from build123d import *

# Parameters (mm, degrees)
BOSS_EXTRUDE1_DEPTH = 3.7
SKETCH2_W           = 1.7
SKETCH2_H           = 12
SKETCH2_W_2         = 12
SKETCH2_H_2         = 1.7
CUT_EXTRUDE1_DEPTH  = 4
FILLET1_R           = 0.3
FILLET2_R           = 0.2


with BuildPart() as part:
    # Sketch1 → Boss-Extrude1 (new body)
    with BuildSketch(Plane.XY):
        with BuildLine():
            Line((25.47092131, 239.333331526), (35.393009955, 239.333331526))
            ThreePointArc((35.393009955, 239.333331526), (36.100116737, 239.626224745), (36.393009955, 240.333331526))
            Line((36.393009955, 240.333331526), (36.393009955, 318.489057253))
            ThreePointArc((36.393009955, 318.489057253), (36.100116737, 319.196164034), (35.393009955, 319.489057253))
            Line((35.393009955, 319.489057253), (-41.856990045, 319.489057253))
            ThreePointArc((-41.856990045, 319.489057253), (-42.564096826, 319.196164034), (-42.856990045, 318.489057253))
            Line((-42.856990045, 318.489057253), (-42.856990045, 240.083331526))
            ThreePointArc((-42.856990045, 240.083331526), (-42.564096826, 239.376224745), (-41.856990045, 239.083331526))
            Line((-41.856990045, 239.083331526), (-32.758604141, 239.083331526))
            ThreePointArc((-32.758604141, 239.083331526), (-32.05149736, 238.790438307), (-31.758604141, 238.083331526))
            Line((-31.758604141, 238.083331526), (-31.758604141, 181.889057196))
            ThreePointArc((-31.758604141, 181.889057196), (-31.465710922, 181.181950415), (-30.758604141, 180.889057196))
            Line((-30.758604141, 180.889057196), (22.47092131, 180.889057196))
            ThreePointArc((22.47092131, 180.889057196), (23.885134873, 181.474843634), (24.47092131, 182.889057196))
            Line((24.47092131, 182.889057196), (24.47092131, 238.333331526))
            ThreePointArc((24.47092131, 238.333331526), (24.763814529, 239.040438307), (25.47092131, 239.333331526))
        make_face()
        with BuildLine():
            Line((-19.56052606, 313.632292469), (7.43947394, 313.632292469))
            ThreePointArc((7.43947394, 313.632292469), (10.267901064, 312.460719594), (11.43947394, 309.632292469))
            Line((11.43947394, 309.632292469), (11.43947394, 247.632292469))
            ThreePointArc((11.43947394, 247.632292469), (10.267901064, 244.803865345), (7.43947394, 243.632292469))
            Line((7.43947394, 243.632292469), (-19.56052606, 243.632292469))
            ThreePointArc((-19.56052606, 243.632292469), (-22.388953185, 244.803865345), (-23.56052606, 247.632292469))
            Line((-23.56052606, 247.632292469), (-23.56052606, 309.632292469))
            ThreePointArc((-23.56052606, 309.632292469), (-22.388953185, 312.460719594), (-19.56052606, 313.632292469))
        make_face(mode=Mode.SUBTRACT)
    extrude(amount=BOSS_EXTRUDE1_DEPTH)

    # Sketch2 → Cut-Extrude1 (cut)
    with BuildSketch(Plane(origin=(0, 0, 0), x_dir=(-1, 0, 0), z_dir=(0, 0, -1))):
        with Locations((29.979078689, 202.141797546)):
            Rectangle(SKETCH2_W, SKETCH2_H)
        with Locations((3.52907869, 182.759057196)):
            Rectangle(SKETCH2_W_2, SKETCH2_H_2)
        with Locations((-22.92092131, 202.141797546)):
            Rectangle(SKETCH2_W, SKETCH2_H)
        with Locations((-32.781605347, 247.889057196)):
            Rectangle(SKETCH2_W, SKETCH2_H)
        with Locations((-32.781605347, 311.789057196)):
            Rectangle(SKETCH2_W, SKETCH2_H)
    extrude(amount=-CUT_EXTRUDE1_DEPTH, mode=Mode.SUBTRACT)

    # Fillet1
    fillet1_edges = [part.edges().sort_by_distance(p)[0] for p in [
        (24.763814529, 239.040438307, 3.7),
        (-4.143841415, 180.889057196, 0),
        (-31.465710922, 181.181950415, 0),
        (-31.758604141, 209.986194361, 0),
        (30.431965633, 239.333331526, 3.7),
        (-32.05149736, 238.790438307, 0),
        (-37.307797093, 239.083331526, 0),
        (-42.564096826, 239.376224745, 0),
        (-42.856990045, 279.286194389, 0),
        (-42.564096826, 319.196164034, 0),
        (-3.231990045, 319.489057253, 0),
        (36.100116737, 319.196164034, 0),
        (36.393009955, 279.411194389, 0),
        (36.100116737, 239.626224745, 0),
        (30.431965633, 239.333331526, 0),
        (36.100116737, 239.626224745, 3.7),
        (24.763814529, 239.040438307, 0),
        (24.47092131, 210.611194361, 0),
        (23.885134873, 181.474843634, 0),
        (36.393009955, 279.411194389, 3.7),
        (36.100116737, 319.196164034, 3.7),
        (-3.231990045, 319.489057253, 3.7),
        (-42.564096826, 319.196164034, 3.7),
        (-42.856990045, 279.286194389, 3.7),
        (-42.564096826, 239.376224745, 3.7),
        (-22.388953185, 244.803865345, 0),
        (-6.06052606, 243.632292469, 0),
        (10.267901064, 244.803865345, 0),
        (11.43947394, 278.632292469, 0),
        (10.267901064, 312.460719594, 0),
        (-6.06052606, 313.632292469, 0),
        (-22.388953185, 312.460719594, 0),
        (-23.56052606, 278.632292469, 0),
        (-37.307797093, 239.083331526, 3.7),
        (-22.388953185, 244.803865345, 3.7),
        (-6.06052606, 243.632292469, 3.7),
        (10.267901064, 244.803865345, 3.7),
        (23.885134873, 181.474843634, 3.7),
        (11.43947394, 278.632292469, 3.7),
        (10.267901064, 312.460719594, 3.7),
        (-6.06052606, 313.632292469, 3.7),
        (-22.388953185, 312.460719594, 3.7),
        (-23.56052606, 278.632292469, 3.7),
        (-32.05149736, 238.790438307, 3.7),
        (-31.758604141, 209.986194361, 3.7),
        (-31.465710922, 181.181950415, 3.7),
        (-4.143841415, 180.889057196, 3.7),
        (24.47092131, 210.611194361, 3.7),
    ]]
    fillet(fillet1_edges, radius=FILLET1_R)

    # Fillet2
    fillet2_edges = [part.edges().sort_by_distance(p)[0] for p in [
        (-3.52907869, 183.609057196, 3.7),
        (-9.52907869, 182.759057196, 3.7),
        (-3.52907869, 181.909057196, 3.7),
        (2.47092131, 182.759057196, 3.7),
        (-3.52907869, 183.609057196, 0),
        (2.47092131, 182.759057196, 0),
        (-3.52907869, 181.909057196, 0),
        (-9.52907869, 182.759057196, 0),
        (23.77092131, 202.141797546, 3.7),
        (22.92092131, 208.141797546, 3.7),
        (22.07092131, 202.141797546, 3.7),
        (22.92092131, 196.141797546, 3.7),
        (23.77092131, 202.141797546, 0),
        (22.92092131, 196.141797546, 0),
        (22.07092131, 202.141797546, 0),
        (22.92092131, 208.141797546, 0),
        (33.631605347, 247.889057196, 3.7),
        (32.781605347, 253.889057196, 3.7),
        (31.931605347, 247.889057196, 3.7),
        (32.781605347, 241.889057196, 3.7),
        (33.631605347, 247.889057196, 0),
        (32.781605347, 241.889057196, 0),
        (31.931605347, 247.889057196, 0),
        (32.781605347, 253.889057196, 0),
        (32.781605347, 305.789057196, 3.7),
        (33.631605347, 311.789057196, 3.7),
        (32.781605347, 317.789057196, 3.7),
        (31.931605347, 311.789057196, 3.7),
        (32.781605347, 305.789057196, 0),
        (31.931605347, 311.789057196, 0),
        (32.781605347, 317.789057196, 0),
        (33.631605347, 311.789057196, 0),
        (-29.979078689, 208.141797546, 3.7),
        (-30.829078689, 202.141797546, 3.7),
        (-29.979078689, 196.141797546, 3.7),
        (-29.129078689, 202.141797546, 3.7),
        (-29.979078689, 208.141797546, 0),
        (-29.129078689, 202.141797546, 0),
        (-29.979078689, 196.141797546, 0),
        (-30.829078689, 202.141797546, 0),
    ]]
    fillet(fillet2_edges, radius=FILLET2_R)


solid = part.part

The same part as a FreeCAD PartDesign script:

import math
import FreeCAD as App
import Part
import Sketcher

V = App.Vector


def edges_at(feature, points):
    """Names of the edges that pass closest to the given points."""
    edges = feature.Shape.Edges
    near = lambda p: min(range(len(edges)), key=lambda i: edges[i].distToShape(Part.Vertex(*p))[0])
    return sorted({f"Edge{near(p) + 1}" for p in points})


def add_polygon(sketch, points):
    """Adds a closed chain of lines whose ends are joined by coincident constraints."""
    first, n = sketch.GeometryCount, len(points)
    for a, b in zip(points, points[1:] + points[:1]):
        sketch.addGeometry(Part.LineSegment(App.Vector(*a, 0), App.Vector(*b, 0)), False)
    for i in range(n):
        sketch.addConstraint(Sketcher.Constraint("Coincident", first + i, 2, first + (i + 1) % n, 1))

doc = App.newDocument("Part")
body = doc.addObject("PartDesign::Body", "Body")

# Sketch on XY plane
sketch1 = doc.addObject("Sketcher::SketchObject", "Sketch")
body.addObject(sketch1)
sketch1.AttachmentSupport = (doc.XY_Plane, [""])
sketch1.MapMode = "FlatFace"
sketch1.addGeometry([
    Part.LineSegment(V(25.5, 239.3, 0), V(35.4, 239.3, 0)),  # 0
    Part.ArcOfCircle(Part.Circle(V(35.4, 240.3, 0), V(0, 0, 1), 1), math.radians(-90), math.radians(0)),  # 1
    Part.LineSegment(V(36.4, 240.3, 0), V(36.4, 318.5, 0)),  # 2
    Part.ArcOfCircle(Part.Circle(V(35.4, 318.5, 0), V(0, 0, 1), 1), math.radians(0), math.radians(90)),  # 3
    Part.LineSegment(V(35.4, 319.5, 0), V(-41.9, 319.5, 0)),  # 4
    Part.ArcOfCircle(Part.Circle(V(-41.9, 318.5, 0), V(0, 0, 1), 1), math.radians(90), math.radians(180)),  # 5
    Part.LineSegment(V(-42.9, 318.5, 0), V(-42.9, 240.1, 0)),  # 6
    Part.ArcOfCircle(Part.Circle(V(-41.9, 240.1, 0), V(0, 0, 1), 1), math.radians(-180), math.radians(-90)),  # 7
    Part.LineSegment(V(-41.9, 239.1, 0), V(-32.8, 239.1, 0)),  # 8
    Part.ArcOfCircle(Part.Circle(V(-32.8, 238.1, 0), V(0, 0, 1), 1), math.radians(0), math.radians(90)),  # 9
    Part.LineSegment(V(-31.8, 238.1, 0), V(-31.8, 181.9, 0)),  # 10
    Part.ArcOfCircle(Part.Circle(V(-30.8, 181.9, 0), V(0, 0, 1), 1), math.radians(-180), math.radians(-90)),  # 11
    Part.LineSegment(V(-30.8, 180.9, 0), V(22.5, 180.9, 0)),  # 12
    Part.ArcOfCircle(Part.Circle(V(22.5, 182.9, 0), V(0, 0, 1), 2), math.radians(-90), math.radians(0)),  # 13
    Part.LineSegment(V(24.5, 182.9, 0), V(24.5, 238.3, 0)),  # 14
    Part.ArcOfCircle(Part.Circle(V(25.5, 238.3, 0), V(0, 0, 1), 1), math.radians(90), math.radians(180)),  # 15
    Part.ArcOfCircle(Part.Circle(V(-19.6, 309.6, 0), V(0, 0, 1), 4), math.radians(90), math.radians(180)),  # 16
    Part.LineSegment(V(-19.6, 313.6, 0), V(7.4, 313.6, 0)),  # 17
    Part.ArcOfCircle(Part.Circle(V(7.4, 309.6, 0), V(0, 0, 1), 4), math.radians(0), math.radians(90)),  # 18
    Part.LineSegment(V(11.4, 309.6, 0), V(11.4, 247.6, 0)),  # 19
    Part.ArcOfCircle(Part.Circle(V(7.4, 247.6, 0), V(0, 0, 1), 4), math.radians(-90), math.radians(0)),  # 20
    Part.LineSegment(V(7.4, 243.6, 0), V(-19.6, 243.6, 0)),  # 21
    Part.ArcOfCircle(Part.Circle(V(-19.6, 247.6, 0), V(0, 0, 1), 4), math.radians(-180), math.radians(-90)),  # 22
    Part.LineSegment(V(-23.6, 247.6, 0), V(-23.6, 309.6, 0)),  # 23
], False)
sketch1.addConstraint([
    Sketcher.Constraint("Tangent", 0, 2, 1, 1),
    Sketcher.Constraint("Tangent", 1, 2, 2, 1),
    Sketcher.Constraint("Tangent", 2, 2, 3, 1),
    Sketcher.Constraint("Tangent", 3, 2, 4, 1),
    Sketcher.Constraint("Tangent", 4, 2, 5, 1),
    Sketcher.Constraint("Tangent", 5, 2, 6, 1),
    Sketcher.Constraint("Tangent", 6, 2, 7, 1),
    Sketcher.Constraint("Tangent", 7, 2, 8, 1),
    Sketcher.Constraint("Tangent", 8, 2, 9, 2),
    Sketcher.Constraint("Tangent", 9, 1, 10, 1),
    Sketcher.Constraint("Tangent", 10, 2, 11, 1),
    Sketcher.Constraint("Tangent", 11, 2, 12, 1),
    Sketcher.Constraint("Tangent", 12, 2, 13, 1),
    Sketcher.Constraint("Tangent", 13, 2, 14, 1),
    Sketcher.Constraint("Tangent", 14, 2, 15, 2),
    Sketcher.Constraint("Tangent", 15, 1, 0, 1),
    Sketcher.Constraint("Tangent", 16, 1, 17, 1),
    Sketcher.Constraint("Tangent", 17, 2, 18, 2),
    Sketcher.Constraint("Tangent", 18, 1, 19, 1),
    Sketcher.Constraint("Tangent", 19, 2, 20, 2),
    Sketcher.Constraint("Tangent", 20, 1, 21, 1),
    Sketcher.Constraint("Tangent", 21, 2, 22, 2),
    Sketcher.Constraint("Tangent", 22, 1, 23, 1),
    Sketcher.Constraint("Tangent", 23, 2, 16, 2),
    Sketcher.Constraint("Horizontal", 0),
    Sketcher.Constraint("Vertical", 2),
    Sketcher.Constraint("Horizontal", 4),
    Sketcher.Constraint("Vertical", 6),
    Sketcher.Constraint("Horizontal", 8),
    Sketcher.Constraint("Vertical", 10),
    Sketcher.Constraint("Horizontal", 12),
    Sketcher.Constraint("Vertical", 14),
    Sketcher.Constraint("Horizontal", 17),
    Sketcher.Constraint("Vertical", 19),
    Sketcher.Constraint("Horizontal", 21),
    Sketcher.Constraint("Vertical", 23),
    Sketcher.Constraint("Equal", 1, 3),
    Sketcher.Constraint("Equal", 3, 5),
    Sketcher.Constraint("Equal", 5, 7),
    Sketcher.Constraint("Equal", 7, 9),
    Sketcher.Constraint("Equal", 9, 11),
    Sketcher.Constraint("Equal", 11, 15),
    Sketcher.Constraint("Equal", 16, 18),
    Sketcher.Constraint("Equal", 18, 20),
    Sketcher.Constraint("Equal", 20, 22),
    Sketcher.Constraint("Radius", 1, 1.0),
    Sketcher.Constraint("Radius", 13, 2.0),
    Sketcher.Constraint("Radius", 16, 4.0),
    Sketcher.Constraint("DistanceX", 17, 1, 17, 2, 27.0),
    Sketcher.Constraint("DistanceY", 19, 2, 19, 1, 62.0),
    Sketcher.Constraint("DistanceX", 4, 2, 4, 1, 77.25),
    Sketcher.Constraint("DistanceY", 11, 3, 5, 3, 136.6),
    Sketcher.Constraint("DistanceY", 7, 3, 1, 3, 0.25),
    Sketcher.Constraint("DistanceX", 0, 1, 0, 2, 9.922089),
    Sketcher.Constraint("DistanceX", 8, 1, 8, 2, 9.098386),
    Sketcher.Constraint("DistanceY", 2, 1, 2, 2, 78.155726),
    Sketcher.Constraint("DistanceX", -1, 1, 1, 3, 35.39301),
    Sketcher.Constraint("DistanceY", -1, 1, 1, 3, 240.333332),
    Sketcher.Constraint("DistanceX", 9, 3, 16, 3, 13.198078),
    Sketcher.Constraint("DistanceY", 9, 3, 16, 3, 71.548961),
])
pad1 = doc.addObject("PartDesign::Pad", "Pad")
body.addObject(pad1)
pad1.Profile = sketch1
pad1.Length = 3.7

# Sketch on XY plane
sketch2 = doc.addObject("Sketcher::SketchObject", "Sketch001")
body.addObject(sketch2)
sketch2.AttachmentSupport = (doc.XY_Plane, [""])
sketch2.MapMode = "FlatFace"
add_polygon(sketch2, [(-29.1, 208.1), (-29.1, 196.1), (-30.8, 196.1), (-30.8, 208.1)])  # lines 0-3
add_polygon(sketch2, [(2.5, 183.6), (2.5, 181.9), (-9.5, 181.9), (-9.5, 183.6)])  # lines 4-7
add_polygon(sketch2, [(23.8, 208.1), (23.8, 196.1), (22.1, 196.1), (22.1, 208.1)])  # lines 8-11
add_polygon(sketch2, [(33.6, 253.9), (33.6, 241.9), (31.9, 241.9), (31.9, 253.9)])  # lines 12-15
add_polygon(sketch2, [(33.6, 317.8), (33.6, 305.8), (31.9, 305.8), (31.9, 317.8)])  # lines 16-19
sketch2.addConstraint([
    Sketcher.Constraint("Vertical", 0),
    Sketcher.Constraint("Horizontal", 1),
    Sketcher.Constraint("Vertical", 2),
    Sketcher.Constraint("Horizontal", 3),
    Sketcher.Constraint("Vertical", 4),
    Sketcher.Constraint("Horizontal", 5),
    Sketcher.Constraint("Vertical", 6),
    Sketcher.Constraint("Horizontal", 7),
    Sketcher.Constraint("Vertical", 8),
    Sketcher.Constraint("Horizontal", 9),
    Sketcher.Constraint("Vertical", 10),
    Sketcher.Constraint("Horizontal", 11),
    Sketcher.Constraint("Vertical", 12),
    Sketcher.Constraint("Horizontal", 13),
    Sketcher.Constraint("Vertical", 14),
    Sketcher.Constraint("Horizontal", 15),
    Sketcher.Constraint("Vertical", 16),
    Sketcher.Constraint("Horizontal", 17),
    Sketcher.Constraint("Vertical", 18),
    Sketcher.Constraint("Horizontal", 19),
    Sketcher.Constraint("Horizontal", 1, 2, 8, 2),
    Sketcher.Constraint("Horizontal", 3, 2, 10, 2),
    Sketcher.Constraint("Vertical", 15, 2, 16, 2),
    Sketcher.Constraint("Vertical", 14, 2, 17, 2),
    Sketcher.Constraint("Equal", 3, 9),
    Sketcher.Constraint("Equal", 11, 13),
    Sketcher.Constraint("Equal", 7, 0),
    Sketcher.Constraint("Equal", 19, 4),
    Sketcher.Constraint("Equal", 10, 12),
    Sketcher.Constraint("Equal", 14, 16),
    Sketcher.Constraint("DistanceX", 5, 2, 5, 1, 12.0),
    Sketcher.Constraint("DistanceX", 1, 2, 1, 1, 1.7),
    Sketcher.Constraint("DistanceX", 0, 2, 4, 2, 31.6),
    Sketcher.Constraint("DistanceX", 7, 2, 8, 2, 21.3),
    Sketcher.Constraint("DistanceY", 15, 2, 16, 2, 51.9),
    Sketcher.Constraint("DistanceY", 7, 2, 12, 2, 58.28),
    Sketcher.Constraint("DistanceX", 0, 2, -1, 1, 29.129079),
    Sketcher.Constraint("DistanceY", 4, 2, 0, 2, 14.23274),
    Sketcher.Constraint("DistanceY", -1, 1, 0, 2, 196.141798),
    Sketcher.Constraint("DistanceX", -1, 1, 12, 2, 33.631605),
])
pocket1 = doc.addObject("PartDesign::Pocket", "Pocket")
body.addObject(pocket1)
pocket1.Profile = sketch2
pocket1.Length = 4
pocket1.Reversed = True
doc.recompute()

fillet = doc.addObject("PartDesign::Fillet", "Fillet")
body.addObject(fillet)
fillet.Base = (pocket1, edges_at(pocket1, [
    (24.764, 239.04, 3.7),
    (-4.144, 180.889, 0),
    (-31.466, 181.182, 0),
    (-31.759, 209.986, 0),
    (30.432, 239.333, 3.7),
    (-32.051, 238.79, 0),
    (-37.308, 239.083, 0),
    (-42.564, 239.376, 0),
    (-42.857, 279.286, 0),
    (-42.564, 319.196, 0),
    (-3.232, 319.489, 0),
    (36.1, 319.196, 0),
    (36.393, 279.411, 0),
    (36.1, 239.626, 0),
    (30.432, 239.333, 0),
    (36.1, 239.626, 3.7),
    (24.764, 239.04, 0),
    (24.471, 210.611, 0),
    (23.885, 181.475, 0),
    (36.393, 279.411, 3.7),
    (36.1, 319.196, 3.7),
    (-3.232, 319.489, 3.7),
    (-42.564, 319.196, 3.7),
    (-42.857, 279.286, 3.7),
    (-42.564, 239.376, 3.7),
    (-22.389, 244.804, 0),
    (-6.061, 243.632, 0),
    (10.268, 244.804, 0),
    (11.439, 278.632, 0),
    (10.268, 312.461, 0),
    (-6.061, 313.632, 0),
    (-22.389, 312.461, 0),
    (-23.561, 278.632, 0),
    (-37.308, 239.083, 3.7),
    (-22.389, 244.804, 3.7),
    (-6.061, 243.632, 3.7),
    (10.268, 244.804, 3.7),
    (23.885, 181.475, 3.7),
    (11.439, 278.632, 3.7),
    (10.268, 312.461, 3.7),
    (-6.061, 313.632, 3.7),
    (-22.389, 312.461, 3.7),
    (-23.561, 278.632, 3.7),
    (-32.051, 238.79, 3.7),
    (-31.759, 209.986, 3.7),
    (-31.466, 181.182, 3.7),
    (-4.144, 180.889, 3.7),
    (24.471, 210.611, 3.7),
]))
fillet.Radius = 0.3
doc.recompute()

fillet2 = doc.addObject("PartDesign::Fillet", "Fillet001")
body.addObject(fillet2)
fillet2.Base = (fillet, edges_at(fillet, [
    (-3.529, 183.609, 3.7),
    (-9.529, 182.759, 3.7),
    (-3.529, 181.909, 3.7),
    (2.471, 182.759, 3.7),
    (-3.529, 183.609, 0),
    (2.471, 182.759, 0),
    (-3.529, 181.909, 0),
    (-9.529, 182.759, 0),
    (23.771, 202.142, 3.7),
    (22.921, 208.142, 3.7),
    (22.071, 202.142, 3.7),
    (22.921, 196.142, 3.7),
    (23.771, 202.142, 0),
    (22.921, 196.142, 0),
    (22.071, 202.142, 0),
    (22.921, 208.142, 0),
    (33.632, 247.889, 3.7),
    (32.782, 253.889, 3.7),
    (31.932, 247.889, 3.7),
    (32.782, 241.889, 3.7),
    (33.632, 247.889, 0),
    (32.782, 241.889, 0),
    (31.932, 247.889, 0),
    (32.782, 253.889, 0),
    (32.782, 305.789, 3.7),
    (33.632, 311.789, 3.7),
    (32.782, 317.789, 3.7),
    (31.932, 311.789, 3.7),
    (32.782, 305.789, 0),
    (31.932, 311.789, 0),
    (32.782, 317.789, 0),
    (33.632, 311.789, 0),
    (-29.979, 208.142, 3.7),
    (-30.829, 202.142, 3.7),
    (-29.979, 196.142, 3.7),
    (-29.129, 202.142, 3.7),
    (-29.979, 208.142, 0),
    (-29.129, 202.142, 0),
    (-29.979, 196.142, 0),
    (-30.829, 202.142, 0),
]))
fillet2.Radius = 0.2

doc.recompute()
